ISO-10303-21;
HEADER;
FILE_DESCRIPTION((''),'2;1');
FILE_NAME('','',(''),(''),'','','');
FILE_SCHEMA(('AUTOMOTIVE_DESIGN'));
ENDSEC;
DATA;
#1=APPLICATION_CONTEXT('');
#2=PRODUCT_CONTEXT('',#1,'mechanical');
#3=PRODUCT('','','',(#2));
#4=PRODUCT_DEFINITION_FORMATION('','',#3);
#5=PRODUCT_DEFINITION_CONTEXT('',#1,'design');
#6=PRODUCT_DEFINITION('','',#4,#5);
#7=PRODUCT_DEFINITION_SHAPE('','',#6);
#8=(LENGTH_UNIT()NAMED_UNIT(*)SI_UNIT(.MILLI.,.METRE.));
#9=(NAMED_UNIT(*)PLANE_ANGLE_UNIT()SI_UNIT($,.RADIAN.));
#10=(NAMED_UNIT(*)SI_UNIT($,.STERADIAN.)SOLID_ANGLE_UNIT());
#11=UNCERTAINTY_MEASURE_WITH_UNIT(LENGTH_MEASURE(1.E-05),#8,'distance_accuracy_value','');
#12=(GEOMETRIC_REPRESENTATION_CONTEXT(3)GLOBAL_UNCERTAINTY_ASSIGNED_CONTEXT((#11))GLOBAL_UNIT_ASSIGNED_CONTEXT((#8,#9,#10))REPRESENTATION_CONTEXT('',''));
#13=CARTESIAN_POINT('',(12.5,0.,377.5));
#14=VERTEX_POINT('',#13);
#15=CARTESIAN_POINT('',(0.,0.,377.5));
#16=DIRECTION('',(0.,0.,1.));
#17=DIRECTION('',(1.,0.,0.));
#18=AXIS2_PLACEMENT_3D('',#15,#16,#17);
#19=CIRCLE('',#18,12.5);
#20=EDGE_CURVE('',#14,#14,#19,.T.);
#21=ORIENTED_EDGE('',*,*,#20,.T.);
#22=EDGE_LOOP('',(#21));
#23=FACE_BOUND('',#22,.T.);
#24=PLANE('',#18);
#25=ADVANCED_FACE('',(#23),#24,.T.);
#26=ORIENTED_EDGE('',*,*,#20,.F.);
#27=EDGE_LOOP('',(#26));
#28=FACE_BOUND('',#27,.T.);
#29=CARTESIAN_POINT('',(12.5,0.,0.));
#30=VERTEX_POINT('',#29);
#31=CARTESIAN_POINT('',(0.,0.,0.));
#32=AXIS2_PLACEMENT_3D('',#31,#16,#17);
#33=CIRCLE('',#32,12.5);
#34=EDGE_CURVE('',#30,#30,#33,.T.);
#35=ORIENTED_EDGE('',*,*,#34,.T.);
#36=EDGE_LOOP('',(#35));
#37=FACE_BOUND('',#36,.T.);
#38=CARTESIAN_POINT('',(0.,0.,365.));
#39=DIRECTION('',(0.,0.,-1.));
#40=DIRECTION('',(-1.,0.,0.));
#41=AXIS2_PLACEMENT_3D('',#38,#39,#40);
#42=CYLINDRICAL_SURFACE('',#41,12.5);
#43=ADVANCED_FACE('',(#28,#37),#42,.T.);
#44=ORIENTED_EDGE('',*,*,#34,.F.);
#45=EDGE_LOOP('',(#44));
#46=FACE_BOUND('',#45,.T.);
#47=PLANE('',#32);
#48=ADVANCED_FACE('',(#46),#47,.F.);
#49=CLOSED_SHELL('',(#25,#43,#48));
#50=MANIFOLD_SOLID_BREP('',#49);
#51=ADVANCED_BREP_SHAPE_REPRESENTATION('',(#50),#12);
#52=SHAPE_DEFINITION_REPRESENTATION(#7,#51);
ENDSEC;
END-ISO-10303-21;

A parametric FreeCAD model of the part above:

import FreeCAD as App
import Part
import Sketcher
from FreeCAD import Vector

doc = App.newDocument("Part")
body = doc.addObject("PartDesign::Body", "Body")

# Sketch on XY plane
sketch1 = body.newObject("Sketcher::SketchObject", "Sketch")
sketch1.AttachmentSupport = (doc.getObject("XY_Plane"), [""])
sketch1.MapMode = "FlatFace"
sketch1.addGeometry(Part.Circle(Vector(0, 0, 0), Vector(0, 0, 1), 12.5), False)
sketch1.addConstraint(Sketcher.Constraint("Coincident", 0, 3, -1, 1))
sketch1.addConstraint(Sketcher.Constraint("Diameter", 0, 25.0))
pad1 = body.newObject("PartDesign::Pad", "Pad")
pad1.Profile = sketch1
pad1.Length = 365

# Sketch on XY plane
sketch2 = body.newObject("Sketcher::SketchObject", "Sketch001")
sketch2.AttachmentSupport = (doc.getObject("XY_Plane"), [""])
sketch2.MapMode = "FlatFace"
sketch2.AttachmentOffset = App.Placement(Vector(0, 0, 365), App.Rotation())
sketch2.addGeometry(Part.Circle(Vector(0, 0, 0), Vector(0, 0, 1), 12.5), False)
sketch2.addConstraint(Sketcher.Constraint("Coincident", 0, 3, -1, 1))
sketch2.addConstraint(Sketcher.Constraint("Diameter", 0, 25.0))
pad2 = body.newObject("PartDesign::Pad", "Pad001")
pad2.Profile = sketch2
pad2.Length = 12.5

doc.recompute()
